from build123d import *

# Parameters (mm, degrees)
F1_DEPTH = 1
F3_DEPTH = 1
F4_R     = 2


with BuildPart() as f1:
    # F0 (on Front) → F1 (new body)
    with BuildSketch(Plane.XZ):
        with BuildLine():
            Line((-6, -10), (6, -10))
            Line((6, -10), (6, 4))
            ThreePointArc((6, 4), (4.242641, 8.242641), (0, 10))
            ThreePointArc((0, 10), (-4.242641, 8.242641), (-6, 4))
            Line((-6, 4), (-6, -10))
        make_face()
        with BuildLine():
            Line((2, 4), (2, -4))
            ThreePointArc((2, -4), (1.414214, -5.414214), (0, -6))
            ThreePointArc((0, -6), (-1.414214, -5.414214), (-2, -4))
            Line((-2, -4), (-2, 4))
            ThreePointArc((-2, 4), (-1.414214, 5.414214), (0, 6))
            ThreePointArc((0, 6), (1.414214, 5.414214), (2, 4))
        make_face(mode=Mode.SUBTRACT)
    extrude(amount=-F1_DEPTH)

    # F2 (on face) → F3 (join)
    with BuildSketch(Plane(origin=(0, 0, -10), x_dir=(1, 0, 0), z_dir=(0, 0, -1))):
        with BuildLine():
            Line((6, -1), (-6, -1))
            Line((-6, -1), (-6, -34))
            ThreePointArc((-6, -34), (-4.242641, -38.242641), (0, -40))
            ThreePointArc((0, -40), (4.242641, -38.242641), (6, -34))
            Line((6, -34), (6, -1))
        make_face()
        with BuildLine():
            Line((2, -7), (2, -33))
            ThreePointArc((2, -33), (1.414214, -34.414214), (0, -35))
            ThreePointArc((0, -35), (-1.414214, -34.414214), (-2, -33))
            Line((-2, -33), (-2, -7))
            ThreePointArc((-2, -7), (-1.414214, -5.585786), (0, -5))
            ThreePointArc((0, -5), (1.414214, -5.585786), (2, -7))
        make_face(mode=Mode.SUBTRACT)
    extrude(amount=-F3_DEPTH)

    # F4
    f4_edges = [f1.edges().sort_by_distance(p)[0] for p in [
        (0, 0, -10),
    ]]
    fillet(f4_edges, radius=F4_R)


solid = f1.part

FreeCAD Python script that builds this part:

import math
import FreeCAD as App
import Part
import Sketcher


def edges_at(feature, points):
    """Names of the edges that pass closest to the given points."""
    edges = feature.Shape.Edges
    near = lambda p: min(range(len(edges)), key=lambda i: edges[i].distToShape(Part.Vertex(*p))[0])
    return sorted({f"Edge{near(p) + 1}" for p in points})

doc = App.newDocument("Part")
body = doc.addObject("PartDesign::Body", "Body")

sketch1 = body.newObject("Sketcher::SketchObject", "Sketch")
sketch1.AttachmentSupport = (doc.getObject("XZ_Plane"), [""])
sketch1.MapMode = "FlatFace"
sketch1.addGeometry([
    Part.LineSegment(App.Vector(-6, -10, 0), App.Vector(6, -10, 0)),
    Part.LineSegment(App.Vector(6, -10, 0), App.Vector(6, 4, 0)),
    Part.ArcOfCircle(Part.Circle(App.Vector(0.000001, 4.000001, 0), App.Vector(0, 0, 1), 5.999999), math.radians(-0.00001), math.radians(90.00001)),
    Part.ArcOfCircle(Part.Circle(App.Vector(-0.000001, 4.000001, 0), App.Vector(0, 0, 1), 5.999999), math.radians(89.99999), math.radians(180.00001)),
    Part.LineSegment(App.Vector(-6, 4, 0), App.Vector(-6, -10, 0)),
    Part.ArcOfCircle(Part.Circle(App.Vector(0.000001, 4.000001, 0), App.Vector(0, 0, 1), 1.999999), math.radians(-0.000043), math.radians(90.000043)),
    Part.LineSegment(App.Vector(2, 4, 0), App.Vector(2, -4, 0)),
    Part.ArcOfCircle(Part.Circle(App.Vector(0.000001, -4.000001, 0), App.Vector(0, 0, 1), 1.999999), math.radians(-90.000043), math.radians(0.000043)),
    Part.ArcOfCircle(Part.Circle(App.Vector(-0.000001, -4.000001, 0), App.Vector(0, 0, 1), 1.999999), math.radians(179.999957), math.radians(270.000043)),
    Part.LineSegment(App.Vector(-2, -4, 0), App.Vector(-2, 4, 0)),
    Part.ArcOfCircle(Part.Circle(App.Vector(-0.000001, 4.000001, 0), App.Vector(0, 0, 1), 1.999999), math.radians(89.999957), math.radians(180.000043)),
], False)
sketch1.addConstraint([
    Sketcher.Constraint("Coincident", 0, 2, 1, 1),
    Sketcher.Constraint("Tangent", 1, 2, 2, 1),
    Sketcher.Constraint("Tangent", 2, 2, 3, 1),
    Sketcher.Constraint("Tangent", 3, 2, 4, 1),
    Sketcher.Constraint("Coincident", 4, 2, 0, 1),
    Sketcher.Constraint("Tangent", 5, 1, 6, 1),
    Sketcher.Constraint("Tangent", 6, 2, 7, 2),
    Sketcher.Constraint("Tangent", 7, 1, 8, 2),
    Sketcher.Constraint("Tangent", 8, 1, 9, 1),
    Sketcher.Constraint("Tangent", 9, 2, 10, 2),
    Sketcher.Constraint("Tangent", 10, 1, 5, 2),
    Sketcher.Constraint("Horizontal", 0),
    Sketcher.Constraint("Vertical", 1),
    Sketcher.Constraint("Vertical", 4),
    Sketcher.Constraint("Vertical", 6),
    Sketcher.Constraint("Vertical", 9),
    Sketcher.Constraint("Coincident", 5, 3, 2, 3),
    Sketcher.Constraint("Equal", 2, 3),
    Sketcher.Constraint("Equal", 5, 7),
    Sketcher.Constraint("Equal", 7, 8),
    Sketcher.Constraint("Symmetric", 2, 3, 7, 3, -1, 1),
    Sketcher.Constraint("PointOnObject", 2, 2, -2),
    Sketcher.Constraint("PointOnObject", 7, 1, -2),
    Sketcher.Constraint("PointOnObject", 10, 1, -2),
    Sketcher.Constraint("Radius", 2, 5.999999),
    Sketcher.Constraint("Radius", 5, 1.999999),
    Sketcher.Constraint("DistanceY", 1, 1, 1, 2, 14.0),
    Sketcher.Constraint("DistanceY", 6, 2, 6, 1, 8.0),
])
pad1 = body.newObject("PartDesign::Pad", "Pad")
pad1.Profile = sketch1
pad1.Length = 1
pad1.Reversed = True

sketch2 = body.newObject("Sketcher::SketchObject", "Sketch001")
sketch2.AttachmentSupport = (doc.getObject("XY_Plane"), [""])
sketch2.MapMode = "FlatFace"
sketch2.AttachmentOffset = App.Placement(App.Vector(0, 0, -10), App.Rotation())
sketch2.addGeometry([
    Part.LineSegment(App.Vector(6, 1, 0), App.Vector(-6, 1, 0)),
    Part.LineSegment(App.Vector(-6, 1, 0), App.Vector(-6, 34, 0)),
    Part.ArcOfCircle(Part.Circle(App.Vector(-0.000001, 34.000001, 0), App.Vector(0, 0, 1), 5.999999), math.radians(89.99999), math.radians(180.00001)),
    Part.ArcOfCircle(Part.Circle(App.Vector(0.000001, 34.000001, 0), App.Vector(0, 0, 1), 5.999999), math.radians(-0.00001), math.radians(90.00001)),
    Part.LineSegment(App.Vector(6, 34, 0), App.Vector(6, 1, 0)),
    Part.ArcOfCircle(Part.Circle(App.Vector(0.000001, 6.999999, 0), App.Vector(0, 0, 1), 1.999999), math.radians(-90.000043), math.radians(0.000043)),
    Part.LineSegment(App.Vector(2, 7, 0), App.Vector(2, 33, 0)),
    Part.ArcOfCircle(Part.Circle(App.Vector(0.000001, 33.000001, 0), App.Vector(0, 0, 1), 1.999999), math.radians(-0.000043), math.radians(90.000043)),
    Part.ArcOfCircle(Part.Circle(App.Vector(-0.000001, 33.000001, 0), App.Vector(0, 0, 1), 1.999999), math.radians(89.999957), math.radians(180.000043)),
    Part.LineSegment(App.Vector(-2, 33, 0), App.Vector(-2, 7, 0)),
    Part.ArcOfCircle(Part.Circle(App.Vector(-0.000001, 6.999999, 0), App.Vector(0, 0, 1), 1.999999), math.radians(179.999957), math.radians(270.000043)),
], False)
sketch2.addConstraint([
    Sketcher.Constraint("Coincident", 0, 2, 1, 1),
    Sketcher.Constraint("Tangent", 1, 2, 2, 2),
    Sketcher.Constraint("Tangent", 2, 1, 3, 2),
    Sketcher.Constraint("Tangent", 3, 1, 4, 1),
    Sketcher.Constraint("Coincident", 4, 2, 0, 1),
    Sketcher.Constraint("Tangent", 5, 2, 6, 1),
    Sketcher.Constraint("Tangent", 6, 2, 7, 1),
    Sketcher.Constraint("Tangent", 7, 2, 8, 1),
    Sketcher.Constraint("Tangent", 8, 2, 9, 1),
    Sketcher.Constraint("Tangent", 9, 2, 10, 1),
    Sketcher.Constraint("Tangent", 10, 2, 5, 1),
    Sketcher.Constraint("Horizontal", 0),
    Sketcher.Constraint("Vertical", 1),
    Sketcher.Constraint("Vertical", 4),
    Sketcher.Constraint("Vertical", 6),
    Sketcher.Constraint("Vertical", 9),
    Sketcher.Constraint("Equal", 2, 3),
    Sketcher.Constraint("Equal", 5, 7),
    Sketcher.Constraint("Equal", 7, 8),
    Sketcher.Constraint("PointOnObject", 2, 3, -2),
    Sketcher.Constraint("PointOnObject", 5, 3, -2),
    Sketcher.Constraint("PointOnObject", 2, 1, -2),
    Sketcher.Constraint("PointOnObject", 7, 2, -2),
    Sketcher.Constraint("PointOnObject", 10, 2, -2),
    Sketcher.Constraint("Radius", 2, 5.999999),
    Sketcher.Constraint("Radius", 5, 1.999999),
    Sketcher.Constraint("DistanceY", 1, 1, 1, 2, 33.0),
    Sketcher.Constraint("DistanceY", 6, 1, 6, 2, 26.0),
    Sketcher.Constraint("DistanceY", -1, 1, 2, 3, 34.000001),
    Sketcher.Constraint("DistanceY", -1, 1, 5, 3, 6.999999),
])
pad2 = body.newObject("PartDesign::Pad", "Pad001")
pad2.Profile = sketch2
pad2.Length = 1
doc.recompute()

fillet = body.newObject("PartDesign::Fillet", "Fillet")
fillet.Base = (pad2, edges_at(pad2, [(0, 0, -10)]))
fillet.Radius = 2

doc.recompute()
